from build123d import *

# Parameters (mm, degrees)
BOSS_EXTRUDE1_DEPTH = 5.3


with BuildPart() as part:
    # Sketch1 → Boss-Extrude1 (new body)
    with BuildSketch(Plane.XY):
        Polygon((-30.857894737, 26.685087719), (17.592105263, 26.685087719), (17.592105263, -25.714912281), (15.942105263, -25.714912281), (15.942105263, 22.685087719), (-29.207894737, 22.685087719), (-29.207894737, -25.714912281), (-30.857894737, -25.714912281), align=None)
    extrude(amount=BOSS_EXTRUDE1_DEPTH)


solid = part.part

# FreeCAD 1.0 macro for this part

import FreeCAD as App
import Part
import Sketcher
from FreeCAD import Vector


def add_polygon(sketch, points):
    """Adds a closed chain of lines whose ends are joined by coincident constraints."""
    first, n = sketch.GeometryCount, len(points)
    for a, b in zip(points, points[1:] + points[:1]):
        sketch.addGeometry(Part.LineSegment(App.Vector(*a, 0), App.Vector(*b, 0)), False)
    for i in range(n):
        sketch.addConstraint(Sketcher.Constraint("Coincident", first + i, 2, first + (i + 1) % n, 1))

doc = App.newDocument("Part")
body = doc.addObject("PartDesign::Body", "Body")

# Sketch on XY plane
sketch1 = doc.addObject("Sketcher::SketchObject", "Sketch")
body.addObject(sketch1)
sketch1.AttachmentSupport = (doc.XY_Plane, [""])
sketch1.MapMode = "FlatFace"
add_polygon(sketch1, [(17.6, 26.7), (-30.9, 26.7), (-30.9, -25.7), (-29.2, -25.7), (-29.2, 22.7), (15.9, 22.7), (15.9, -25.7), (17.6, -25.7)])  # lines 0-7
sketch1.addConstraint([
    Sketcher.Constraint("Horizontal", 0),
    Sketcher.Constraint("Vertical", 1),
    Sketcher.Constraint("Horizontal", 2),
    Sketcher.Constraint("Vertical", 3),
    Sketcher.Constraint("Horizontal", 4),
    Sketcher.Constraint("Vertical", 5),
    Sketcher.Constraint("Horizontal", 6),
    Sketcher.Constraint("Vertical", 7),
    Sketcher.Constraint("Horizontal", 2, 2, 5, 2),
    Sketcher.Constraint("Equal", 2, 6),
    Sketcher.Constraint("DistanceY", 1, 2, 1, 1, 52.4),
    Sketcher.Constraint("DistanceY", 3, 1, 3, 2, 48.4),
    Sketcher.Constraint("DistanceX", 0, 2, 0, 1, 48.45),
    Sketcher.Constraint("DistanceX", 2, 1, 2, 2, 1.65),
    Sketcher.Constraint("DistanceX", 0, 2, -1, 1, 30.857895),
    Sketcher.Constraint("DistanceY", -1, 1, 0, 2, 26.685088),
])
pad1 = doc.addObject("PartDesign::Pad", "Pad")
body.addObject(pad1)
pad1.Profile = sketch1
pad1.Length = 5.3

doc.recompute()
